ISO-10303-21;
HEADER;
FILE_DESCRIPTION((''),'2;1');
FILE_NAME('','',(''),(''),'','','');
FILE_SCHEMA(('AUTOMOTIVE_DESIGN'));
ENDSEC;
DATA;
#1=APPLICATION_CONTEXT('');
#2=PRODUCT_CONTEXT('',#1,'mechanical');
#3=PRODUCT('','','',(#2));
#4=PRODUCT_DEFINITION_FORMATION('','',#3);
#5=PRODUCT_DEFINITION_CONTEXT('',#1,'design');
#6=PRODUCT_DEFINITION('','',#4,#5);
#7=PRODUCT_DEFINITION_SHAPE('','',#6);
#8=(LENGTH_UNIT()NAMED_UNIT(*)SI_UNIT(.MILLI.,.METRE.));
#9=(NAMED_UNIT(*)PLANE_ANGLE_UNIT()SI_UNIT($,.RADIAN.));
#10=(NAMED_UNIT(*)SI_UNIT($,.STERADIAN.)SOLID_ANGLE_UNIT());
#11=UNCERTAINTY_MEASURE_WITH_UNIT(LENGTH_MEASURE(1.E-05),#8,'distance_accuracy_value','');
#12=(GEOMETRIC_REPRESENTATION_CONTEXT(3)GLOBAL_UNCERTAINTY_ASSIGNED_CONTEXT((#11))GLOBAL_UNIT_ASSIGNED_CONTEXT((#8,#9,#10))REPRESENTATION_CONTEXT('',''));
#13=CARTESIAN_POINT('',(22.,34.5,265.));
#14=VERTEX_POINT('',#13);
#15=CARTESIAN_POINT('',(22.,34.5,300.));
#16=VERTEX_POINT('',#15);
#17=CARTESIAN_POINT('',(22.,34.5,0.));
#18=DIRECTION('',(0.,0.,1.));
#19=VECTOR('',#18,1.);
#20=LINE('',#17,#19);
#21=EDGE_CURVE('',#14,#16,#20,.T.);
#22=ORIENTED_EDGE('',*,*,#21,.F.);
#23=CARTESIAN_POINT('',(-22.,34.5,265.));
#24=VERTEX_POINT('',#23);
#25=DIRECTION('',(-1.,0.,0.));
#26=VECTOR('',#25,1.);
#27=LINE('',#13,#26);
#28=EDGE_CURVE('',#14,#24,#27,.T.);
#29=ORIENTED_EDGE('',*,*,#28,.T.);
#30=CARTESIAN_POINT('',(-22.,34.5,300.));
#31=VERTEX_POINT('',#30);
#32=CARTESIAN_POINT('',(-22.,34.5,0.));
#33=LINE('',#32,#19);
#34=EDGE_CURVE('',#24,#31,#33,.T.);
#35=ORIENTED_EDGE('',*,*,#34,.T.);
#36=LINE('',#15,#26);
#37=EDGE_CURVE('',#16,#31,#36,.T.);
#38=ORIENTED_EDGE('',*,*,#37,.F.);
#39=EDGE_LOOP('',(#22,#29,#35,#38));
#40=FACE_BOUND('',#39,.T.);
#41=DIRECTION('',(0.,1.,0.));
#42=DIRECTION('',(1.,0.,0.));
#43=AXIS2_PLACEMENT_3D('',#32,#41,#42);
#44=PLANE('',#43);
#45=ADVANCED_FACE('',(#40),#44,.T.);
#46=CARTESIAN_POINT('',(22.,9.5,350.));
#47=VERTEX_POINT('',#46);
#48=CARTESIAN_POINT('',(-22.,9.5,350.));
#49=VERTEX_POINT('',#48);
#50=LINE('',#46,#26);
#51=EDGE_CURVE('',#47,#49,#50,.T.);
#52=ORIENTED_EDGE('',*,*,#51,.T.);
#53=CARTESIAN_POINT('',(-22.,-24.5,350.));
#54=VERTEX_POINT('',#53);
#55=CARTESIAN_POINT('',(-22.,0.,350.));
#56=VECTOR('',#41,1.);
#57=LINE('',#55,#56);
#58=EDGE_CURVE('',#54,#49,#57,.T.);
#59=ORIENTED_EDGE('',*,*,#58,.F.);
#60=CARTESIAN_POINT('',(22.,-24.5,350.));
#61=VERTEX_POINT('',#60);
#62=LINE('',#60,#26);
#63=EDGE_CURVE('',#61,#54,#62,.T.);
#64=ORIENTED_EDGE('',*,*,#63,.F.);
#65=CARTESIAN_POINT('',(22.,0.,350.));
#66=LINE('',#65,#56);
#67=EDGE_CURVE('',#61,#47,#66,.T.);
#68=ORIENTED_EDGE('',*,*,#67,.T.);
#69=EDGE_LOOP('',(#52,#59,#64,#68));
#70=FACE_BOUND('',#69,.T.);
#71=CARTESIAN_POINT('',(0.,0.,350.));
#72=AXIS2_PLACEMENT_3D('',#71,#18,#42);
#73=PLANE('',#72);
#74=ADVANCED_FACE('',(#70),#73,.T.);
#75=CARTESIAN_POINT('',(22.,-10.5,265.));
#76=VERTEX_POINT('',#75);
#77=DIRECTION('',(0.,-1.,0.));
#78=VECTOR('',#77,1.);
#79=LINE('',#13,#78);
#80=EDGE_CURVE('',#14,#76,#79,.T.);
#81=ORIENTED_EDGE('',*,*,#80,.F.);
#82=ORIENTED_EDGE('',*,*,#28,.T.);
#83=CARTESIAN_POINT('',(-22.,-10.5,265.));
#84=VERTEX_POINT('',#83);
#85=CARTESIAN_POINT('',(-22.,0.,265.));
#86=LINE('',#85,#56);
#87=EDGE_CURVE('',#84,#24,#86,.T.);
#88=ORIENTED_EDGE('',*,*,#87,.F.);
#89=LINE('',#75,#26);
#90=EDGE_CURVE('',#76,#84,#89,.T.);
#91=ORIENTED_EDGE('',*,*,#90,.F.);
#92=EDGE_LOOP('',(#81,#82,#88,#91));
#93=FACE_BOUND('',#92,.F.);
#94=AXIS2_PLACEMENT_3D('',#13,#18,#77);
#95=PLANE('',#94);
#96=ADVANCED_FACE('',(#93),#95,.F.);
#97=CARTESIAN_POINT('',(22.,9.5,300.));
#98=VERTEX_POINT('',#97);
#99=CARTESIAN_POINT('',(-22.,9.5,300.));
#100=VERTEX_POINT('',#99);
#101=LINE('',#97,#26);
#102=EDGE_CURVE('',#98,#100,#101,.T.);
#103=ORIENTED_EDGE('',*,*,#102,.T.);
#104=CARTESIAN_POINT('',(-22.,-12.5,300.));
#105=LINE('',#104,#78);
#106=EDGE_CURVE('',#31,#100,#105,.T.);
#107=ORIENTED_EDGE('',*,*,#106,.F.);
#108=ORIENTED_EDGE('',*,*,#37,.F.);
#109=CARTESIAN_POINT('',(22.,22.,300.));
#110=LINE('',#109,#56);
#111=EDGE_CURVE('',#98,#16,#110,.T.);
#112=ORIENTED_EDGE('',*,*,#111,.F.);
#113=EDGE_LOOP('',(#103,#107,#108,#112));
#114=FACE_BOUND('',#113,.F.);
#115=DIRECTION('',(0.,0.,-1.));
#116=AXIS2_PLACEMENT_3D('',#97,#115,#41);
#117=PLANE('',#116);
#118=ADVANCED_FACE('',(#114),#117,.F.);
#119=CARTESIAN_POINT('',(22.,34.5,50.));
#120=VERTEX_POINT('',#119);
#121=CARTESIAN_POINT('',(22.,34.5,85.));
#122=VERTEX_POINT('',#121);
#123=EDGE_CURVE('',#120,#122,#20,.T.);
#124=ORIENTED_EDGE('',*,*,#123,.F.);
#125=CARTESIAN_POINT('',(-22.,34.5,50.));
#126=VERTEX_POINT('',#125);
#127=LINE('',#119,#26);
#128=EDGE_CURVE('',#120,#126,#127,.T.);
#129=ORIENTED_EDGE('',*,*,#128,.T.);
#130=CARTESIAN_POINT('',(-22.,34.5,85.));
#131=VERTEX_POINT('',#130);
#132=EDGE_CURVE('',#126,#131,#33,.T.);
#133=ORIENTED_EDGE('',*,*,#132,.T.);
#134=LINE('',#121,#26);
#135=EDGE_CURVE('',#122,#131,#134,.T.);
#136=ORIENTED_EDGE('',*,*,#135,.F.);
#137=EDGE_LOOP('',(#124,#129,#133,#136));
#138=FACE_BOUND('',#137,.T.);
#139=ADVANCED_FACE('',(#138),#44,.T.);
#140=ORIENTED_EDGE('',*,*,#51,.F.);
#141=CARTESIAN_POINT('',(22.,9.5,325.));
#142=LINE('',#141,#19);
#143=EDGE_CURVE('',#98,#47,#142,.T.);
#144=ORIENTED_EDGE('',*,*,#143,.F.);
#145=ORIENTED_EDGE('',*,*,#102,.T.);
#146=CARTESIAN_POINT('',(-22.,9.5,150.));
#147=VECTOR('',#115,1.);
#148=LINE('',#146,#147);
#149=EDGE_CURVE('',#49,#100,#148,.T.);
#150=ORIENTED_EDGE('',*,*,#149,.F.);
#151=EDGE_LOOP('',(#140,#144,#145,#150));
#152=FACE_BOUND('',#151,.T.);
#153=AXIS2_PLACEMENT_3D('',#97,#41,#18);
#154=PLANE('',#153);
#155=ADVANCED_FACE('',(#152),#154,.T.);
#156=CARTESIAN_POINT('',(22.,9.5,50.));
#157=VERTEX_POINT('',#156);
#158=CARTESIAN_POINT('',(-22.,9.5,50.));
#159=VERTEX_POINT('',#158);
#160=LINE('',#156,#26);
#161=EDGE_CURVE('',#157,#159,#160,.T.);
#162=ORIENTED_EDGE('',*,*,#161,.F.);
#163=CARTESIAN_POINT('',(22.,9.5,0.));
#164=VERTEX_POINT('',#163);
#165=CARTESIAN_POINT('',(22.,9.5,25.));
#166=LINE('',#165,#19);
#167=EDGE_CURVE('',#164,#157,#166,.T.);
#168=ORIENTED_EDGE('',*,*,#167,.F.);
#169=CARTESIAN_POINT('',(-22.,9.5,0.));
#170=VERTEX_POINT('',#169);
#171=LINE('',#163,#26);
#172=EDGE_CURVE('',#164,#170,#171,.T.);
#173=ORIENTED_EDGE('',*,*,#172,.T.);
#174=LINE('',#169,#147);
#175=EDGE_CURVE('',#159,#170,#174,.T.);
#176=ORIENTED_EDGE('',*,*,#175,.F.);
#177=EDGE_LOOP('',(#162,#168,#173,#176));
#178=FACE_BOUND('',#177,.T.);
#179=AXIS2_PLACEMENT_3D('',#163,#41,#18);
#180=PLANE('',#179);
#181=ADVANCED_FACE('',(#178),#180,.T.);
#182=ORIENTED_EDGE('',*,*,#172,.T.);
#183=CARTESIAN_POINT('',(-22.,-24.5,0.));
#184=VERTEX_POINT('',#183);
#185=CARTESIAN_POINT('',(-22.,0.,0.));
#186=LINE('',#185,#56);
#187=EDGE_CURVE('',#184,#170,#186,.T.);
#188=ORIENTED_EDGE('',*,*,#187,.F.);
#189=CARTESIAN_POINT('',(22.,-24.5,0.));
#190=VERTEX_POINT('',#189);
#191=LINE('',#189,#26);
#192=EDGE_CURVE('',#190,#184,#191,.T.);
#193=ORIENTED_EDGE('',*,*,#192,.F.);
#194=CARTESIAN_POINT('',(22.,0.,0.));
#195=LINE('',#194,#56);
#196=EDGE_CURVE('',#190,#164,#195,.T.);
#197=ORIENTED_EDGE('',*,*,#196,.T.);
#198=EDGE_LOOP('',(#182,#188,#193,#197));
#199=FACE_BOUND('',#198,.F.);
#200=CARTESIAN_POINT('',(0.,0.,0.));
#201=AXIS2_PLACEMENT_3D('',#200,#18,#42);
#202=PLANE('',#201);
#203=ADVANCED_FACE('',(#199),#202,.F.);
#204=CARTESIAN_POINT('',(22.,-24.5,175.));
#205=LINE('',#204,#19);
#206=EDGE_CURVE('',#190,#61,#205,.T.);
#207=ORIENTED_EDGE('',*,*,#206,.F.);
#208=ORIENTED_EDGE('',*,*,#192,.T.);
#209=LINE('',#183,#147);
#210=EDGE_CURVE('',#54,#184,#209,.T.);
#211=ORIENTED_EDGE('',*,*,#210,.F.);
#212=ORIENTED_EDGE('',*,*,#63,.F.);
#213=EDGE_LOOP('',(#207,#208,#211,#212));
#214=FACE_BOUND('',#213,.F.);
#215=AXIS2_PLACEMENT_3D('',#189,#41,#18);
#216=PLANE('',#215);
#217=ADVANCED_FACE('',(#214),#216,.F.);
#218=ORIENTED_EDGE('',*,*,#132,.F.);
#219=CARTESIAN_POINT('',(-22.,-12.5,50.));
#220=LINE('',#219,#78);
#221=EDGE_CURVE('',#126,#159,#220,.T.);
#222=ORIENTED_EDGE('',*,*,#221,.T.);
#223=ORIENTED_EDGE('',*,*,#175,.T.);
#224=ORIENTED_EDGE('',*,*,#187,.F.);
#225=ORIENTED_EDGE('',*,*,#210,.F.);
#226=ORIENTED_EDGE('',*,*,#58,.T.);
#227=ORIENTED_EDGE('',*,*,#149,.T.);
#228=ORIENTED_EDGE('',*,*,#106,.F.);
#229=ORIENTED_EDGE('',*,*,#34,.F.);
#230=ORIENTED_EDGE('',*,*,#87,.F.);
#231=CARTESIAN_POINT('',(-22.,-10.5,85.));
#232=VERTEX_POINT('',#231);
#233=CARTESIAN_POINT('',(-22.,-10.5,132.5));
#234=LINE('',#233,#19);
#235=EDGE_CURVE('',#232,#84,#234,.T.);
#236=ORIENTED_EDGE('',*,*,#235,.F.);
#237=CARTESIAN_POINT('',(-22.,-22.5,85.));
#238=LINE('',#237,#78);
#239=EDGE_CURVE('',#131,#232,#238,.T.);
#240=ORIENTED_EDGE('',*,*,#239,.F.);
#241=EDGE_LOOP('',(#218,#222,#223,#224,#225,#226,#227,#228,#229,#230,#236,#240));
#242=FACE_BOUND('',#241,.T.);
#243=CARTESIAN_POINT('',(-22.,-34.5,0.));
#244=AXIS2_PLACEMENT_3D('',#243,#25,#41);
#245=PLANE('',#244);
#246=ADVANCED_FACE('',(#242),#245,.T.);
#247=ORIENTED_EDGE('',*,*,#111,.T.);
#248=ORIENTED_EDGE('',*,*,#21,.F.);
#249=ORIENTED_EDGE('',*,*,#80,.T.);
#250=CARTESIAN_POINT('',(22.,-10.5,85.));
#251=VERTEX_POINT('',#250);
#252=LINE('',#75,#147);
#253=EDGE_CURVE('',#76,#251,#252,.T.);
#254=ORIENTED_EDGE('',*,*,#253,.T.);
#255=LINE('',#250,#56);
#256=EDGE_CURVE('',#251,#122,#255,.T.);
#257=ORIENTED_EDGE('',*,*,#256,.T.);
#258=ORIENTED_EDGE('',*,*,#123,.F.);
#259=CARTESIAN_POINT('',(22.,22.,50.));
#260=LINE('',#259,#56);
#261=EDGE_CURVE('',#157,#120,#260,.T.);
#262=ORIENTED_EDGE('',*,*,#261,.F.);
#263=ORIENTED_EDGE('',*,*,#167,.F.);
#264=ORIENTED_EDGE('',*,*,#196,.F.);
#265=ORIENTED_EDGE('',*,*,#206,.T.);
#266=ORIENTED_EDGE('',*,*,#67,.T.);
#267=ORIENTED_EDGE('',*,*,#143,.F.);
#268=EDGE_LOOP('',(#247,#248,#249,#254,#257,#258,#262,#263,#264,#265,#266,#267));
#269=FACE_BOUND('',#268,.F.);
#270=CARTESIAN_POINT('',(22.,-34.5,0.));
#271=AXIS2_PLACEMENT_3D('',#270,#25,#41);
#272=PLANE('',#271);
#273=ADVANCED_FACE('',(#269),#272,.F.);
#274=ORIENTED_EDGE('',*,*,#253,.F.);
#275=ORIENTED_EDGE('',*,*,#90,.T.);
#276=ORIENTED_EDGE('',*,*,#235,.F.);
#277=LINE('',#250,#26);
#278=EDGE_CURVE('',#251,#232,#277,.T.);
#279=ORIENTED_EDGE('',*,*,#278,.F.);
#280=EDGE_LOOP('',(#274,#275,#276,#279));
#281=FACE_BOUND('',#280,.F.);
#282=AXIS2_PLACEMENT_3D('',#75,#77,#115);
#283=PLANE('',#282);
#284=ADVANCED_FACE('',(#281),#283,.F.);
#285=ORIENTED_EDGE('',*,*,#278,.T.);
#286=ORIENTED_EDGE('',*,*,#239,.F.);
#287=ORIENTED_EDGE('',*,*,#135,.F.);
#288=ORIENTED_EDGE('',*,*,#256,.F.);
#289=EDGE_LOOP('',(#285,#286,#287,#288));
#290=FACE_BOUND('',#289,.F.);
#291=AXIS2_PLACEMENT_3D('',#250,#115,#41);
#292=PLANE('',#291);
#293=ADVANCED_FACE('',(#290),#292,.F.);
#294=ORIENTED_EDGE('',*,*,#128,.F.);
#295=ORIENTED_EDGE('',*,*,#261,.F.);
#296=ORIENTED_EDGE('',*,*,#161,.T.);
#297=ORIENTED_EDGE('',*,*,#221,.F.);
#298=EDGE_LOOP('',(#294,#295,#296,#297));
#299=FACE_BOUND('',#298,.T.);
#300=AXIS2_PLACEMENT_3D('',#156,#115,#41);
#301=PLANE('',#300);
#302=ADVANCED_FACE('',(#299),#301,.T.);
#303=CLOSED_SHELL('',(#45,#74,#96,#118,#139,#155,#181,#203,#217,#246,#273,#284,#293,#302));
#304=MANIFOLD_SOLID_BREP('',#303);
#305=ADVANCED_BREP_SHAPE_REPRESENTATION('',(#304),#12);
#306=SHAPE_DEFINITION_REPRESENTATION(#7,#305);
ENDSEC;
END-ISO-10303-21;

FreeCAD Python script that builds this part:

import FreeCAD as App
import Part
import Sketcher

V = App.Vector

doc = App.newDocument("Part")
params = doc.addObject("Spreadsheet::Sheet", "Params")
for row, (alias, value) in enumerate([
    ("sketch1_width", "44 mm"),
    ("sketch1_height", "69 mm"),
    ("pad1_length", "350 mm"),
    ("sketch2_width", "45 mm"),
    ("sketch2_width2", "25 mm"),
    ("sketch2_height", "180 mm"),
    ("sketch2_height2", "50 mm"),
    ("sketch3_width", "10 mm"),
    ("sketch3_height", "350 mm"),
    ("pocket2_length", "100 mm"),
], start=1):
    params.set(f"A{row}", alias)
    params.set(f"B{row}", "=" + value)
    params.setAlias(f"B{row}", alias)

body = doc.addObject("PartDesign::Body", "Body")

# Sketch on XY plane
sketch1 = doc.addObject("Sketcher::SketchObject", "Sketch")
body.addObject(sketch1)
sketch1.AttachmentSupport = (doc.XY_Plane, [""])
sketch1.MapMode = "FlatFace"
sketch1.addGeometry(Part.LineSegment(V(-22, 34, 0), V(-22, -34, 0)), False)
sketch1.addGeometry(Part.LineSegment(V(-22, -34, 0), V(22, -34, 0)), False)
sketch1.addGeometry(Part.LineSegment(V(22, -34, 0), V(22, 34, 0)), False)
sketch1.addGeometry(Part.LineSegment(V(22, 34, 0), V(-22, 34, 0)), False)
sketch1.addConstraint(Sketcher.Constraint("Coincident", 0, 2, 1, 1))
sketch1.addConstraint(Sketcher.Constraint("Coincident", 1, 2, 2, 1))
sketch1.addConstraint(Sketcher.Constraint("Coincident", 2, 2, 3, 1))
sketch1.addConstraint(Sketcher.Constraint("Coincident", 3, 2, 0, 1))
sketch1.addConstraint(Sketcher.Constraint("Vertical", 0))
sketch1.addConstraint(Sketcher.Constraint("Horizontal", 1))
sketch1.addConstraint(Sketcher.Constraint("Vertical", 2))
sketch1.addConstraint(Sketcher.Constraint("Horizontal", 3))
sketch1.addConstraint(Sketcher.Constraint("Symmetric", 0, 2, 2, 2, -1, 1))
sketch1.addConstraint(Sketcher.Constraint("DistanceX", 1, 1, 1, 2, 44.0))
sketch1.addConstraint(Sketcher.Constraint("DistanceY", 0, 2, 0, 1, 69.0))
sketch1.setExpression("Constraints[9]", "Params.sketch1_width")
sketch1.setExpression("Constraints[10]", "Params.sketch1_height")
pad1 = doc.addObject("PartDesign::Pad", "Pad")
body.addObject(pad1)
pad1.Profile = sketch1
pad1.setExpression("Length", "Params.pad1_length")

# Sketch on YZ plane
sketch2 = doc.addObject("Sketcher::SketchObject", "Sketch001")
body.addObject(sketch2)
sketch2.AttachmentSupport = (doc.YZ_Plane, [""])
sketch2.MapMode = "FlatFace"
sketch2.AttachmentOffset = App.Placement(V(0, 0, 22), App.Rotation())
sketch2.addGeometry(Part.LineSegment(V(-10, 85, 0), V(34, 85, 0)), False)
sketch2.addGeometry(Part.LineSegment(V(34, 85, 0), V(34, 265, 0)), False)
sketch2.addGeometry(Part.LineSegment(V(34, 265, 0), V(-10, 265, 0)), False)
sketch2.addGeometry(Part.LineSegment(V(-10, 265, 0), V(-10, 85, 0)), False)
sketch2.addGeometry(Part.LineSegment(V(10, 50, 0), V(10, 0, 0)), False)
sketch2.addGeometry(Part.LineSegment(V(10, 0, 0), V(34, 0, 0)), False)
sketch2.addGeometry(Part.LineSegment(V(34, 0, 0), V(34, 50, 0)), False)
sketch2.addGeometry(Part.LineSegment(V(34, 50, 0), V(10, 50, 0)), False)
sketch2.addGeometry(Part.LineSegment(V(10, 350, 0), V(10, 300, 0)), False)
sketch2.addGeometry(Part.LineSegment(V(10, 300, 0), V(34, 300, 0)), False)
sketch2.addGeometry(Part.LineSegment(V(34, 300, 0), V(34, 350, 0)), False)
sketch2.addGeometry(Part.LineSegment(V(34, 350, 0), V(10, 350, 0)), False)
sketch2.addConstraint(Sketcher.Constraint("Coincident", 0, 2, 1, 1))
sketch2.addConstraint(Sketcher.Constraint("Coincident", 1, 2, 2, 1))
sketch2.addConstraint(Sketcher.Constraint("Coincident", 2, 2, 3, 1))
sketch2.addConstraint(Sketcher.Constraint("Coincident", 3, 2, 0, 1))
sketch2.addConstraint(Sketcher.Constraint("Coincident", 4, 2, 5, 1))
sketch2.addConstraint(Sketcher.Constraint("Coincident", 5, 2, 6, 1))
sketch2.addConstraint(Sketcher.Constraint("Coincident", 6, 2, 7, 1))
sketch2.addConstraint(Sketcher.Constraint("Coincident", 7, 2, 4, 1))
sketch2.addConstraint(Sketcher.Constraint("Coincident", 8, 2, 9, 1))
sketch2.addConstraint(Sketcher.Constraint("Coincident", 9, 2, 10, 1))
sketch2.addConstraint(Sketcher.Constraint("Coincident", 10, 2, 11, 1))
sketch2.addConstraint(Sketcher.Constraint("Coincident", 11, 2, 8, 1))
sketch2.addConstraint(Sketcher.Constraint("Horizontal", 0))
sketch2.addConstraint(Sketcher.Constraint("Vertical", 1))
sketch2.addConstraint(Sketcher.Constraint("Horizontal", 2))
sketch2.addConstraint(Sketcher.Constraint("Vertical", 3))
sketch2.addConstraint(Sketcher.Constraint("Vertical", 4))
sketch2.addConstraint(Sketcher.Constraint("Horizontal", 5))
sketch2.addConstraint(Sketcher.Constraint("Vertical", 6))
sketch2.addConstraint(Sketcher.Constraint("Horizontal", 7))
sketch2.addConstraint(Sketcher.Constraint("Vertical", 8))
sketch2.addConstraint(Sketcher.Constraint("Horizontal", 9))
sketch2.addConstraint(Sketcher.Constraint("Vertical", 10))
sketch2.addConstraint(Sketcher.Constraint("Horizontal", 11))
sketch2.addConstraint(Sketcher.Constraint("PointOnObject", 4, 2, -1))
sketch2.addConstraint(Sketcher.Constraint("Vertical", 1, 2, 5, 2))
sketch2.addConstraint(Sketcher.Constraint("Vertical", 7, 2, 8, 2))
sketch2.addConstraint(Sketcher.Constraint("Vertical", 6, 2, 9, 2))
sketch2.addConstraint(Sketcher.Constraint("Equal", 6, 8))
sketch2.addConstraint(Sketcher.Constraint("DistanceX", 0, 1, 0, 2, 45.0))
sketch2.addConstraint(Sketcher.Constraint("DistanceX", 5, 1, 5, 2, 25.0))
sketch2.addConstraint(Sketcher.Constraint("DistanceY", 1, 1, 1, 2, 180.0))
sketch2.addConstraint(Sketcher.Constraint("DistanceY", 4, 2, 4, 1, 50.0))
sketch2.addConstraint(Sketcher.Constraint("DistanceY", -1, 1, 0, 2, 85.0))
sketch2.addConstraint(Sketcher.Constraint("DistanceY", -1, 1, 8, 2, 300.0))
sketch2.addConstraint(Sketcher.Constraint("DistanceX", -1, 1, 0, 2, 34.5))
sketch2.setExpression("Constraints[29]", "Params.sketch2_width")
sketch2.setExpression("Constraints[30]", "Params.sketch2_width2")
sketch2.setExpression("Constraints[31]", "Params.sketch2_height")
sketch2.setExpression("Constraints[32]", "Params.sketch2_height2")
pocket1 = doc.addObject("PartDesign::Pocket", "Pocket")
body.addObject(pocket1)
pocket1.Profile = sketch2
pocket1.Type = "ThroughAll"

# Sketch on YZ plane
sketch3 = doc.addObject("Sketcher::SketchObject", "Sketch002")
body.addObject(sketch3)
sketch3.AttachmentSupport = (doc.YZ_Plane, [""])
sketch3.MapMode = "FlatFace"
sketch3.AttachmentOffset = App.Placement(V(0, 0, 22), App.Rotation())
sketch3.addGeometry(Part.LineSegment(V(-34, 350, 0), V(-34, 0, 0)), False)
sketch3.addGeometry(Part.LineSegment(V(-34, 0, 0), V(-24, 0, 0)), False)
sketch3.addGeometry(Part.LineSegment(V(-24, 0, 0), V(-24, 350, 0)), False)
sketch3.addGeometry(Part.LineSegment(V(-24, 350, 0), V(-34, 350, 0)), False)
sketch3.addConstraint(Sketcher.Constraint("Coincident", 0, 2, 1, 1))
sketch3.addConstraint(Sketcher.Constraint("Coincident", 1, 2, 2, 1))
sketch3.addConstraint(Sketcher.Constraint("Coincident", 2, 2, 3, 1))
sketch3.addConstraint(Sketcher.Constraint("Coincident", 3, 2, 0, 1))
sketch3.addConstraint(Sketcher.Constraint("Vertical", 0))
sketch3.addConstraint(Sketcher.Constraint("Horizontal", 1))
sketch3.addConstraint(Sketcher.Constraint("Vertical", 2))
sketch3.addConstraint(Sketcher.Constraint("Horizontal", 3))
sketch3.addConstraint(Sketcher.Constraint("PointOnObject", 0, 2, -1))
sketch3.addConstraint(Sketcher.Constraint("DistanceX", 1, 1, 1, 2, 10.0))
sketch3.addConstraint(Sketcher.Constraint("DistanceY", 0, 2, 0, 1, 350.0))
sketch3.addConstraint(Sketcher.Constraint("DistanceX", 0, 2, -1, 1, 34.5))
sketch3.setExpression("Constraints[9]", "Params.sketch3_width")
sketch3.setExpression("Constraints[10]", "Params.sketch3_height")
pocket2 = doc.addObject("PartDesign::Pocket", "Pocket001")
body.addObject(pocket2)
pocket2.Profile = sketch3
pocket2.setExpression("Length", "Params.pocket2_length")

doc.recompute()
